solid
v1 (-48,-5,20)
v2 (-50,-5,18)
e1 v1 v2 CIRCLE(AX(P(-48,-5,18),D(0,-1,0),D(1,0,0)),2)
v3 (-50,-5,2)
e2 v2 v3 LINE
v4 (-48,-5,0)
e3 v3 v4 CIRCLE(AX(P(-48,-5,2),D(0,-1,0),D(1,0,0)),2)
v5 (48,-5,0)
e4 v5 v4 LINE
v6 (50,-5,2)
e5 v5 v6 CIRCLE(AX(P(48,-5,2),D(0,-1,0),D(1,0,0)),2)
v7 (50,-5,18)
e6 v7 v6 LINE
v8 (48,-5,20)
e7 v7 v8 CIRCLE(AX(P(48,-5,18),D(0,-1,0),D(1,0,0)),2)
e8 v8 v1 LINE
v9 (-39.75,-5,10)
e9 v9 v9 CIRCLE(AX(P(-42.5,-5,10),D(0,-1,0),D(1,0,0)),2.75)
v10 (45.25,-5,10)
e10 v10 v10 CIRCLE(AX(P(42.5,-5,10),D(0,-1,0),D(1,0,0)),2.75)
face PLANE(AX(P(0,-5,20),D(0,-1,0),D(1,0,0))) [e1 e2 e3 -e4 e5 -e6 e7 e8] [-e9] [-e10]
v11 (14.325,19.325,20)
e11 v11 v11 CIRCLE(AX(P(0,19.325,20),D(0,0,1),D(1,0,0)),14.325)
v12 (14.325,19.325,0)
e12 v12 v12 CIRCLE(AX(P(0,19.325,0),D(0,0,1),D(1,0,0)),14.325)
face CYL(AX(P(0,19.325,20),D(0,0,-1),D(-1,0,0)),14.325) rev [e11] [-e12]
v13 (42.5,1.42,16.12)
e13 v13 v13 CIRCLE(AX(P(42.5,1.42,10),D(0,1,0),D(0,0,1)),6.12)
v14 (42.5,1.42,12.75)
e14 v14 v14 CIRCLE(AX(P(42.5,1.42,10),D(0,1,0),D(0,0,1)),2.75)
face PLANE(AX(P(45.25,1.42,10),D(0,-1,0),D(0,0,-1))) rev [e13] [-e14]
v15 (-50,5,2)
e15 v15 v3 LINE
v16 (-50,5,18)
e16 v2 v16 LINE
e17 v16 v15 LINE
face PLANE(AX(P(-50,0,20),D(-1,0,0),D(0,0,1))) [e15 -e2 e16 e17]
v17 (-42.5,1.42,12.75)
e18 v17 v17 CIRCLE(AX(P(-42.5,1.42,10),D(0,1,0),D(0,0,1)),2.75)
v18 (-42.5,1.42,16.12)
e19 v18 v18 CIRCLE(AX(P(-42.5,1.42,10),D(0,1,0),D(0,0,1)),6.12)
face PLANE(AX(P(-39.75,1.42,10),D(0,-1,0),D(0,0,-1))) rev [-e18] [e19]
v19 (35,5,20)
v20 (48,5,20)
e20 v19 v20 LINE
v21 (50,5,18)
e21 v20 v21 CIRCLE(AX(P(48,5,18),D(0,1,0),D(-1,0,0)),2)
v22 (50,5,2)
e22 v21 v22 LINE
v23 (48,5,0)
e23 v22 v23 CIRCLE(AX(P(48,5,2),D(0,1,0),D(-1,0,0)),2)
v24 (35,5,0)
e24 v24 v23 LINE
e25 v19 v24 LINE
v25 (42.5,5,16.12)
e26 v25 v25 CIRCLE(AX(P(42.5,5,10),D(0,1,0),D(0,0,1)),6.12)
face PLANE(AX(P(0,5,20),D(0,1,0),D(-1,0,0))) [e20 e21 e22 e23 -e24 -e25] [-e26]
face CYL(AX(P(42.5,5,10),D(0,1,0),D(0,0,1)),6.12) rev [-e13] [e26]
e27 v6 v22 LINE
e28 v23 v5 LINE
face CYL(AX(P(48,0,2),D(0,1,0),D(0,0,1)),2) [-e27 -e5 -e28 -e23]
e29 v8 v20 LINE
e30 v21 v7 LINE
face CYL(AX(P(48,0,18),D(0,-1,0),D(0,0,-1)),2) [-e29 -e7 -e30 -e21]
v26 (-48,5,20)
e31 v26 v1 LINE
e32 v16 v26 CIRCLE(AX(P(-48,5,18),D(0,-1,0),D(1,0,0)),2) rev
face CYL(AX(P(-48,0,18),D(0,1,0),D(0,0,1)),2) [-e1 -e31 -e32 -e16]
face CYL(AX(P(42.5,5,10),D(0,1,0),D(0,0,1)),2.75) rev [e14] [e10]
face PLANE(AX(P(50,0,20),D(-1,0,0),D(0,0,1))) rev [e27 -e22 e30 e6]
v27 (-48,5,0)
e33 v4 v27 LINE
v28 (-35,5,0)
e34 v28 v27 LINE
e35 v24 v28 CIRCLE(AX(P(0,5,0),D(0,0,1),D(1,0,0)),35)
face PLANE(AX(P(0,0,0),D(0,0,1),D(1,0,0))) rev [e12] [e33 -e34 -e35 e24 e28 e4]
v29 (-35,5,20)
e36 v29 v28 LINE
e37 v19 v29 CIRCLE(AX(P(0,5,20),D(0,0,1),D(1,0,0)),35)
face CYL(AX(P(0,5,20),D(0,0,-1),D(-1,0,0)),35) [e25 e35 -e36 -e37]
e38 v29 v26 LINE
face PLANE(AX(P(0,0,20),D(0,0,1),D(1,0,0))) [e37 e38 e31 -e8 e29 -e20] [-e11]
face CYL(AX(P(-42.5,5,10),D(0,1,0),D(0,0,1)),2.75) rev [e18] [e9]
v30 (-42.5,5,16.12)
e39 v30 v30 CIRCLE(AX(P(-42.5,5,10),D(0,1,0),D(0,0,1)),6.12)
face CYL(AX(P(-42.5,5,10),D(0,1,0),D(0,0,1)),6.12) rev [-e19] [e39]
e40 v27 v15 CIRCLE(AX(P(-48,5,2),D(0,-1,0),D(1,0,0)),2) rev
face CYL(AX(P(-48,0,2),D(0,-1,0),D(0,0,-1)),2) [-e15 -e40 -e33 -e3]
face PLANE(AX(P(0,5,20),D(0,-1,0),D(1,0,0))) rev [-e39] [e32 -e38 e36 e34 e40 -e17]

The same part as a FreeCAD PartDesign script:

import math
import FreeCAD as App
import Part
import Sketcher

V = App.Vector


def edges_at(feature, points):
    """Names of the edges that pass closest to the given points."""
    edges = feature.Shape.Edges
    near = lambda p: min(range(len(edges)), key=lambda i: edges[i].distToShape(Part.Vertex(*p))[0])
    return sorted({f"Edge{near(p) + 1}" for p in points})

doc = App.newDocument("Part")
body = doc.addObject("PartDesign::Body", "Body")

# Sketch on XY plane
sketch1 = body.newObject("Sketcher::SketchObject", "Sketch")
sketch1.AttachmentSupport = (doc.getObject("XY_Plane"), [""])
sketch1.MapMode = "FlatFace"
sketch1.addGeometry(Part.ArcOfCircle(Part.Circle(V(0, 5, 0), V(0, 0, 1), 35), math.radians(0), math.radians(180)), False)
sketch1.addGeometry(Part.LineSegment(V(-35, 5, 0), V(-50, 5, 0)), False)
sketch1.addGeometry(Part.LineSegment(V(-50, 5, 0), V(-50, -5, 0)), False)
sketch1.addGeometry(Part.LineSegment(V(-50, -5, 0), V(50, -5, 0)), False)
sketch1.addGeometry(Part.LineSegment(V(50, -5, 0), V(50, 5, 0)), False)
sketch1.addGeometry(Part.LineSegment(V(50, 5, 0), V(35, 5, 0)), False)
sketch1.addGeometry(Part.Circle(V(0, 19.325, 0), V(0, 0, 1), 14.325), False)
sketch1.addConstraint(Sketcher.Constraint("Coincident", 0, 2, 1, 1))
sketch1.addConstraint(Sketcher.Constraint("Coincident", 1, 2, 2, 1))
sketch1.addConstraint(Sketcher.Constraint("Coincident", 2, 2, 3, 1))
sketch1.addConstraint(Sketcher.Constraint("Coincident", 3, 2, 4, 1))
sketch1.addConstraint(Sketcher.Constraint("Coincident", 4, 2, 5, 1))
sketch1.addConstraint(Sketcher.Constraint("Coincident", 5, 2, 0, 1))
sketch1.addConstraint(Sketcher.Constraint("Horizontal", 1))
sketch1.addConstraint(Sketcher.Constraint("Vertical", 2))
sketch1.addConstraint(Sketcher.Constraint("Horizontal", 3))
sketch1.addConstraint(Sketcher.Constraint("Vertical", 4))
sketch1.addConstraint(Sketcher.Constraint("Horizontal", 5))
sketch1.addConstraint(Sketcher.Constraint("Symmetric", 1, 2, 3, 2, -1, 1))
sketch1.addConstraint(Sketcher.Constraint("Symmetric", 0, 2, 5, 2, -2))
sketch1.addConstraint(Sketcher.Constraint("PointOnObject", 6, 3, -2))
sketch1.addConstraint(Sketcher.Constraint("Radius", 0, 35.0))
sketch1.addConstraint(Sketcher.Constraint("Diameter", 6, 28.65))
sketch1.addConstraint(Sketcher.Constraint("DistanceX", 1, 2, 1, 1, 15.0))
sketch1.addConstraint(Sketcher.Constraint("DistanceY", 2, 2, 2, 1, 10.0))
sketch1.addConstraint(Sketcher.Constraint("DistanceY", -1, 1, 0, 3, 5.0))
sketch1.addConstraint(Sketcher.Constraint("DistanceY", -1, 1, 6, 3, 19.325))
pad1 = body.newObject("PartDesign::Pad", "Pad")
pad1.Profile = sketch1
pad1.Length = 20

# Sketch on XZ plane
sketch2 = body.newObject("Sketcher::SketchObject", "Sketch001")
sketch2.AttachmentSupport = (doc.getObject("XZ_Plane"), [""])
sketch2.MapMode = "FlatFace"
sketch2.AttachmentOffset = App.Placement(V(0, 0, -5), App.Rotation())
sketch2.addGeometry(Part.Circle(V(-42.5, 10, 0), V(0, 0, 1), 2.75), False)
sketch2.addGeometry(Part.Circle(V(42.5, 10, 0), V(0, 0, 1), 2.75), False)
sketch2.addConstraint(Sketcher.Constraint("Equal", 0, 1))
sketch2.addConstraint(Sketcher.Constraint("Symmetric", 0, 3, 1, 3, -2))
sketch2.addConstraint(Sketcher.Constraint("Diameter", 0, 5.5))
sketch2.addConstraint(Sketcher.Constraint("DistanceY", -1, 1, 0, 3, 10.0))
sketch2.addConstraint(Sketcher.Constraint("DistanceX", 0, 3, 1, 3, 85.0))
doc.recompute()
hole = body.newObject("PartDesign::Hole", "Hole")
hole.Profile = sketch2
hole.ThreadType = "None"
hole.Diameter = 5.5
hole.DepthType = "Dimension"
hole.Depth = 10
hole.DrillPoint = "Flat"
hole.HoleCutType = "Counterbore"
hole.HoleCutDiameter = 12.24
hole.HoleCutDepth = 3.58
hole.Reversed = True
doc.recompute()

fillet = body.newObject("PartDesign::Fillet", "Fillet")
fillet.Base = (hole, edges_at(hole, [
    (50, 0, 0),
    (-50, 0, 0),
    (50, 0, 20),
    (-50, 0, 20),
]))
fillet.Radius = 2

doc.recompute()
